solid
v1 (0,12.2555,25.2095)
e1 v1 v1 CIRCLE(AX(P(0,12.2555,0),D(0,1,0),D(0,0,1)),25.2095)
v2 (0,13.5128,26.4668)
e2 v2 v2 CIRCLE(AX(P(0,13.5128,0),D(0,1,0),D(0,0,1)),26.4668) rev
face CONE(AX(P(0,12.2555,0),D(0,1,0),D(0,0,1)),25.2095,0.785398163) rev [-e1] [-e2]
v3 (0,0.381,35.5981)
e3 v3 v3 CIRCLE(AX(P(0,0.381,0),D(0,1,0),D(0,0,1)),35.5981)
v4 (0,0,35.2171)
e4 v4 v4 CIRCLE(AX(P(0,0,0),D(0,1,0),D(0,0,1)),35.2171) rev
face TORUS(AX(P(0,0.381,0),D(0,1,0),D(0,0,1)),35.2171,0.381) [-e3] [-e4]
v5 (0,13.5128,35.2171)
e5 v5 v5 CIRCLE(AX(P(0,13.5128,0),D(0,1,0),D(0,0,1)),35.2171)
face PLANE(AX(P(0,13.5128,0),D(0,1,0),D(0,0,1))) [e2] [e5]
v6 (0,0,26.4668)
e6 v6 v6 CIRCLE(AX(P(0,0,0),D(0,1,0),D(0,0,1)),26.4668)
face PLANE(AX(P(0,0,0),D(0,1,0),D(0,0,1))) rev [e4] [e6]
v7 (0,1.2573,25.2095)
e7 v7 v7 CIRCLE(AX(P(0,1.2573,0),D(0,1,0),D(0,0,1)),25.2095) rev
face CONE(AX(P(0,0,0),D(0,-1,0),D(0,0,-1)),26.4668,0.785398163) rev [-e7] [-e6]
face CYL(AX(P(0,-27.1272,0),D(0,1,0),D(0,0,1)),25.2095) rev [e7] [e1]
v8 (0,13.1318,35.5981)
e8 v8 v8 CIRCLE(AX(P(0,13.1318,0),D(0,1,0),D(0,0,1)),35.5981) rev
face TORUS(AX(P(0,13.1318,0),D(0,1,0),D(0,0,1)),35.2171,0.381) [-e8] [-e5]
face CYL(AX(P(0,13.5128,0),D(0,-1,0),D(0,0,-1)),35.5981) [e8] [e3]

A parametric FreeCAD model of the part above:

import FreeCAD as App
import Part
import Sketcher
from FreeCAD import Vector
Q = App.Units.Quantity


def edges_at(feature, points):
    """Names of the edges that pass closest to the given points."""
    edges = feature.Shape.Edges
    near = lambda p: min(range(len(edges)), key=lambda i: edges[i].distToShape(Part.Vertex(*p))[0])
    return sorted({f"Edge{near(p) + 1}" for p in points})

doc = App.newDocument("Part")
body = doc.addObject("PartDesign::Body", "Body")

# Sketch on XZ plane
sketch1 = body.newObject("Sketcher::SketchObject", "Sketch")
sketch1.AttachmentSupport = (doc.getObject("XZ_Plane"), [""])
sketch1.MapMode = "FlatFace"
sketch1.addGeometry(Part.Circle(Vector(0, 0, 0), Vector(0, 0, 1), 35.5981), False)
sketch1.addConstraint([
    Sketcher.Constraint("Coincident", 0, 3, -1, 1),
    Sketcher.Constraint("Diameter", 0, Q("2.803 in")),
])
pad1 = body.newObject("PartDesign::Pad", "Pad")
pad1.Profile = sketch1
pad1.Length = Q("0.532 in")
pad1.Reversed = True

# Sketch on XZ plane
sketch2 = body.newObject("Sketcher::SketchObject", "Sketch001")
sketch2.AttachmentSupport = (doc.getObject("XZ_Plane"), [""])
sketch2.MapMode = "FlatFace"
sketch2.AttachmentOffset = App.Placement(Vector(0, 0, -0.532 * 25.4), App.Rotation())
sketch2.addGeometry(Part.Circle(Vector(0, 0, 0), Vector(0, 0, 1), 25.2095), False)
sketch2.addConstraint([
    Sketcher.Constraint("Coincident", 0, 3, -1, 1),
    Sketcher.Constraint("Diameter", 0, Q("1.985 in")),
])
pocket1 = body.newObject("PartDesign::Pocket", "Pocket")
pocket1.Profile = sketch2
pocket1.Length = Q("1.6 in")
pocket1.Reversed = True
doc.recompute()

fillet = body.newObject("PartDesign::Fillet", "Fillet")
fillet.Base = (pocket1, edges_at(pocket1, [(-35.598, 13.513, 0)]))
fillet.Radius = Q("0.015 in")
doc.recompute()

fillet2 = body.newObject("PartDesign::Fillet", "Fillet001")
fillet2.Base = (fillet, edges_at(fillet, [(-35.598, 0, 0)]))
fillet2.Radius = Q("0.015 in")
doc.recompute()

chamfer = body.newObject("PartDesign::Chamfer", "Chamfer")
chamfer.Base = (fillet2, edges_at(fillet2, [(-25.209, 13.513, 0)]))
chamfer.Size = Q("0.0495 in")
doc.recompute()

chamfer2 = body.newObject("PartDesign::Chamfer", "Chamfer001")
chamfer2.Base = (chamfer, edges_at(chamfer, [(-25.209, 0, 0)]))
chamfer2.Size = Q("0.0495 in")

doc.recompute()
